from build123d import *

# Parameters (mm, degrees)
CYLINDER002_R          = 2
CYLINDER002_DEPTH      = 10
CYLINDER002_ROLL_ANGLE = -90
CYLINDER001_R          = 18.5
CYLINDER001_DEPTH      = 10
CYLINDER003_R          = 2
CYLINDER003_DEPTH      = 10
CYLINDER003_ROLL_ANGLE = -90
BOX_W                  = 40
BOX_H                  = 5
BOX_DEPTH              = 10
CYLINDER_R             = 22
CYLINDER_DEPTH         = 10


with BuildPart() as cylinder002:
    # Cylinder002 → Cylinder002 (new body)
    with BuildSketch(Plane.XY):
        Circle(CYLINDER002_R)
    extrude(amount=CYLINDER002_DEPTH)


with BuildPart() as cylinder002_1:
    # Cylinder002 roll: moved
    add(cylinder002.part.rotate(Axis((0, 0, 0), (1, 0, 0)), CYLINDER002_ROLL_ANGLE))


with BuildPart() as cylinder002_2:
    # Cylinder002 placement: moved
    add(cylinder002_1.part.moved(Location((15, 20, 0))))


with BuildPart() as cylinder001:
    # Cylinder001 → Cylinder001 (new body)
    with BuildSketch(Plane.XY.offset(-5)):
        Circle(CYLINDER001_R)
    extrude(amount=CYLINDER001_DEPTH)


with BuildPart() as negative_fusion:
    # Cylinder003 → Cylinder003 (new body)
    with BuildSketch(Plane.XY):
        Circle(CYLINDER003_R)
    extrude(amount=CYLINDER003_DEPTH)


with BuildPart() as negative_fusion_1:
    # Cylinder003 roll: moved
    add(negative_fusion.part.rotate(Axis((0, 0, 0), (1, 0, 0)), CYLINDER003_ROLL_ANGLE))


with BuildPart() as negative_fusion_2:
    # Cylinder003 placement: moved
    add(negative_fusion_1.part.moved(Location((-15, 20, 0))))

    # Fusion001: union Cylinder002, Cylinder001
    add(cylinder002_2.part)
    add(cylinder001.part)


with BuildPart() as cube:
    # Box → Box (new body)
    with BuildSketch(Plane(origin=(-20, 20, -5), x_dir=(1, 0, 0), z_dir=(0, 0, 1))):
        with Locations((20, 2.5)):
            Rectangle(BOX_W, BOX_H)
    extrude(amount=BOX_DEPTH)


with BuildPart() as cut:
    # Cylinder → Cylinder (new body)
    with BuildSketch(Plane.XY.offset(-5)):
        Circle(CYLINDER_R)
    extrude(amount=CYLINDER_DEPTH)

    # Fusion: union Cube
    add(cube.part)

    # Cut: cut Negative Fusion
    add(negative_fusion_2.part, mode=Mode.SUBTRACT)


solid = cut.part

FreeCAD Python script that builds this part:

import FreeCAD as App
import Part
import Sketcher


def add_polygon(sketch, points):
    """Adds a closed chain of lines whose ends are joined by coincident constraints."""
    first, n = sketch.GeometryCount, len(points)
    for a, b in zip(points, points[1:] + points[:1]):
        sketch.addGeometry(Part.LineSegment(App.Vector(*a, 0), App.Vector(*b, 0)), False)
    for i in range(n):
        sketch.addConstraint(Sketcher.Constraint("Coincident", first + i, 2, first + (i + 1) % n, 1))

doc = App.newDocument("Part")
body = doc.addObject("PartDesign::Body", "Body")

# Sketch on XY plane
sketch1 = body.newObject("Sketcher::SketchObject", "Sketch")
sketch1.AttachmentSupport = (doc.getObject("XY_Plane"), [""])
sketch1.MapMode = "FlatFace"
sketch1.addGeometry(Part.Circle(App.Vector(0, 0, 0), App.Vector(0, 0, 1), 2), False)
sketch1.addConstraint(Sketcher.Constraint("Coincident", 0, 3, -1, 1))
sketch1.addConstraint(Sketcher.Constraint("Diameter", 0, 4.0))
pad1 = body.newObject("PartDesign::Pad", "Pad")
pad1.Profile = sketch1
pad1.Length = 10
body2 = doc.addObject("PartDesign::Body", "Body001")
doc.recompute()

body.Placement = App.Placement(App.Vector(0, 0, 0), App.Rotation(App.Vector(1, 0, 0), 270))
boolean = body2.newObject("PartDesign::Boolean", "Boolean")
boolean.Type = "Fuse"
boolean.addObjects([body])
body3 = doc.addObject("PartDesign::Body", "Body002")
doc.recompute()

body2.Placement = App.Placement(App.Vector(15, 20, 0), App.Rotation(App.Vector(0, 0, 1), 0))
boolean2 = body3.newObject("PartDesign::Boolean", "Boolean001")
boolean2.Type = "Fuse"
boolean2.addObjects([body2])
body4 = doc.addObject("PartDesign::Body", "Body003")

# Sketch on XY plane
sketch2 = body4.newObject("Sketcher::SketchObject", "Sketch001")
sketch2.AttachmentSupport = (doc.getObject("XY_Plane003"), [""])
sketch2.MapMode = "FlatFace"
sketch2.AttachmentOffset = App.Placement(App.Vector(0, 0, -5), App.Rotation())
sketch2.addGeometry(Part.Circle(App.Vector(0, 0, 0), App.Vector(0, 0, 1), 18.5), False)
sketch2.addConstraint(Sketcher.Constraint("Coincident", 0, 3, -1, 1))
sketch2.addConstraint(Sketcher.Constraint("Diameter", 0, 37.0))
pad2 = body4.newObject("PartDesign::Pad", "Pad001")
pad2.Profile = sketch2
pad2.Length = 10
body5 = doc.addObject("PartDesign::Body", "Body004")

# Sketch on XY plane
sketch3 = body5.newObject("Sketcher::SketchObject", "Sketch002")
sketch3.AttachmentSupport = (doc.getObject("XY_Plane004"), [""])
sketch3.MapMode = "FlatFace"
sketch3.addGeometry(Part.Circle(App.Vector(0, 0, 0), App.Vector(0, 0, 1), 2), False)
sketch3.addConstraint(Sketcher.Constraint("Coincident", 0, 3, -1, 1))
sketch3.addConstraint(Sketcher.Constraint("Diameter", 0, 4.0))
pad3 = body5.newObject("PartDesign::Pad", "Pad002")
pad3.Profile = sketch3
pad3.Length = 10
body6 = doc.addObject("PartDesign::Body", "Body005")
doc.recompute()

body5.Placement = App.Placement(App.Vector(0, 0, 0), App.Rotation(App.Vector(1, 0, 0), 270))
boolean3 = body6.newObject("PartDesign::Boolean", "Boolean002")
boolean3.Type = "Fuse"
boolean3.addObjects([body5])
body7 = doc.addObject("PartDesign::Body", "Body006")
body7.AllowCompound = True
doc.recompute()

body6.Placement = App.Placement(App.Vector(-15, 20, 0), App.Rotation(App.Vector(0, 0, 1), 0))
boolean4 = body7.newObject("PartDesign::Boolean", "Boolean003")
boolean4.Type = "Fuse"
boolean4.addObjects([body6])
doc.recompute()

boolean5 = body7.newObject("PartDesign::Boolean", "Boolean004")
boolean5.Type = "Fuse"
boolean5.addObjects([body3])
doc.recompute()

boolean6 = body7.newObject("PartDesign::Boolean", "Boolean005")
boolean6.Type = "Fuse"
boolean6.addObjects([body4])
body8 = doc.addObject("PartDesign::Body", "Body007")

# Sketch on XY plane
sketch4 = body8.newObject("Sketcher::SketchObject", "Sketch003")
sketch4.AttachmentSupport = (doc.getObject("XY_Plane007"), [""])
sketch4.MapMode = "FlatFace"
sketch4.AttachmentOffset = App.Placement(App.Vector(0, 0, -5), App.Rotation())
add_polygon(sketch4, [(-20, 25), (-20, 20), (20, 20), (20, 25)])  # lines 0-3
sketch4.addConstraint(Sketcher.Constraint("Vertical", 0))
sketch4.addConstraint(Sketcher.Constraint("Horizontal", 1))
sketch4.addConstraint(Sketcher.Constraint("Vertical", 2))
sketch4.addConstraint(Sketcher.Constraint("Horizontal", 3))
sketch4.addConstraint(Sketcher.Constraint("DistanceX", 1, 1, 1, 2, 40.0))
sketch4.addConstraint(Sketcher.Constraint("DistanceY", 0, 2, 0, 1, 5.0))
sketch4.addConstraint(Sketcher.Constraint("DistanceX", 0, 2, -1, 1, 20.0))
sketch4.addConstraint(Sketcher.Constraint("DistanceY", -1, 1, 0, 2, 20.0))
pad4 = body8.newObject("PartDesign::Pad", "Pad003")
pad4.Profile = sketch4
pad4.Length = 10
body9 = doc.addObject("PartDesign::Body", "Body008")

# Sketch on XY plane
sketch5 = body9.newObject("Sketcher::SketchObject", "Sketch004")
sketch5.AttachmentSupport = (doc.getObject("XY_Plane008"), [""])
sketch5.MapMode = "FlatFace"
sketch5.AttachmentOffset = App.Placement(App.Vector(0, 0, -5), App.Rotation())
sketch5.addGeometry(Part.Circle(App.Vector(0, 0, 0), App.Vector(0, 0, 1), 22), False)
sketch5.addConstraint(Sketcher.Constraint("Coincident", 0, 3, -1, 1))
sketch5.addConstraint(Sketcher.Constraint("Diameter", 0, 44.0))
pad5 = body9.newObject("PartDesign::Pad", "Pad004")
pad5.Profile = sketch5
pad5.Length = 10
doc.recompute()

boolean7 = body9.newObject("PartDesign::Boolean", "Boolean006")
boolean7.Type = "Fuse"
boolean7.addObjects([body8])
doc.recompute()

boolean8 = body9.newObject("PartDesign::Boolean", "Boolean007")
boolean8.Type = "Cut"
boolean8.addObjects([body7])

doc.recompute()
